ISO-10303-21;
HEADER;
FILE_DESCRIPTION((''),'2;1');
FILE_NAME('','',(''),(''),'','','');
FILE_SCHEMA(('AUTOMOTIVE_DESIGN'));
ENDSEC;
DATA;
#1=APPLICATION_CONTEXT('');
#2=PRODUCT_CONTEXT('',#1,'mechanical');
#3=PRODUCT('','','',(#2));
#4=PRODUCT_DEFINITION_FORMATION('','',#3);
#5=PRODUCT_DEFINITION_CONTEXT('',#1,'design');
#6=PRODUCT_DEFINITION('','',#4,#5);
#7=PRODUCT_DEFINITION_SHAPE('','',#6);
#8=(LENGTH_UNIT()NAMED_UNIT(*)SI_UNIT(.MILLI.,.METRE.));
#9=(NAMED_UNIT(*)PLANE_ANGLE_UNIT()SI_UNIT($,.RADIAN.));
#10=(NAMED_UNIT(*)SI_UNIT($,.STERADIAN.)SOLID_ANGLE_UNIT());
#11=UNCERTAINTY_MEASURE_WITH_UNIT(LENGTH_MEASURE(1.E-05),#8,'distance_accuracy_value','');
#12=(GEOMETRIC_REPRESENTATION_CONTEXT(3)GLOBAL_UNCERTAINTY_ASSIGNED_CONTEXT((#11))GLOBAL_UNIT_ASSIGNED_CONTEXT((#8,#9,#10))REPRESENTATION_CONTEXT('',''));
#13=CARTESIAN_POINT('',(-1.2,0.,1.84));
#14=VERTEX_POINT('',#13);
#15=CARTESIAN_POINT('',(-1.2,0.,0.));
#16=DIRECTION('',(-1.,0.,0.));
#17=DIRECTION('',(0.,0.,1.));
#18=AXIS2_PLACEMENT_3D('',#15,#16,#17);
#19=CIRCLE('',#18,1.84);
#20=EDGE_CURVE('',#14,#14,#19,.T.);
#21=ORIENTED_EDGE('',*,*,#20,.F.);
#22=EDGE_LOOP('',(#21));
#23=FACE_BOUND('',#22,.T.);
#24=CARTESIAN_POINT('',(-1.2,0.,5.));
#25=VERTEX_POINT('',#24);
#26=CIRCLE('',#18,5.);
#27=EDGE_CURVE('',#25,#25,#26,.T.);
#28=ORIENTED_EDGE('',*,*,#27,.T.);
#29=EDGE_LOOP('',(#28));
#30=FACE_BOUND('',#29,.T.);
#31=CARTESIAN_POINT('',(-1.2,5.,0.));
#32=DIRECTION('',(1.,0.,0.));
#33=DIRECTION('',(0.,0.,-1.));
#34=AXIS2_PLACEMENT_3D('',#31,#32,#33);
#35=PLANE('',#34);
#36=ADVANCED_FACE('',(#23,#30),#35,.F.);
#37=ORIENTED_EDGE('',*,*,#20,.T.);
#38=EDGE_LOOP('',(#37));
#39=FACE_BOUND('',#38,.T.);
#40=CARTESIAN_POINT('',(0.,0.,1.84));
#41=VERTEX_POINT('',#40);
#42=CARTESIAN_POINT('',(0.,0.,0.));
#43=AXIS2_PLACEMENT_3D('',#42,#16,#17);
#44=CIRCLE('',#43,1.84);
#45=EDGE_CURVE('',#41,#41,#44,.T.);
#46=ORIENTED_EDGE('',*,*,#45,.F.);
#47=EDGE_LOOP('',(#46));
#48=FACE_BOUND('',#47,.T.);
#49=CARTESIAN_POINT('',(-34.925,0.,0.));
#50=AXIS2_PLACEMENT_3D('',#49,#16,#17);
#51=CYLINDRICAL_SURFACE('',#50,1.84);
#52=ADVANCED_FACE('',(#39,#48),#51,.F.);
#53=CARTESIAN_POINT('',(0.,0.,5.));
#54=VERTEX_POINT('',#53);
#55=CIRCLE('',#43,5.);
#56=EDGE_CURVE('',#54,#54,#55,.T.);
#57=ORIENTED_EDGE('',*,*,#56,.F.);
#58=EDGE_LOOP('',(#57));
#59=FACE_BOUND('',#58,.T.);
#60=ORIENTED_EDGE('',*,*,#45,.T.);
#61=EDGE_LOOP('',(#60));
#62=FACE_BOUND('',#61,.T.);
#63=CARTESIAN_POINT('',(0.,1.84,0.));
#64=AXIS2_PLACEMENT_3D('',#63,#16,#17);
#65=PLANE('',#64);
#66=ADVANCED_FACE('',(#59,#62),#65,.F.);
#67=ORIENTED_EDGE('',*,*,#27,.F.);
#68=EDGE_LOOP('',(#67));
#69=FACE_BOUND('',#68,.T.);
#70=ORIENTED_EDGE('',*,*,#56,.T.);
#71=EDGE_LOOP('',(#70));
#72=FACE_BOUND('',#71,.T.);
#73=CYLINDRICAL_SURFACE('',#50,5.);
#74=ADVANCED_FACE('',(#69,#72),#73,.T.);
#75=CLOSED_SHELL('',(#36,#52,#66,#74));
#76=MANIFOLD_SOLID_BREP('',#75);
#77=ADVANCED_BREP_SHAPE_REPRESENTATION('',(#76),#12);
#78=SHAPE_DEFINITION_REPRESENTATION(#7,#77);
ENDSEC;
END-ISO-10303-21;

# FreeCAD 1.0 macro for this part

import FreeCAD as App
import Part
import Sketcher

V = App.Vector


def add_polygon(sketch, points):
    """Adds a closed chain of lines whose ends are joined by coincident constraints."""
    first, n = sketch.GeometryCount, len(points)
    for a, b in zip(points, points[1:] + points[:1]):
        sketch.addGeometry(Part.LineSegment(App.Vector(*a, 0), App.Vector(*b, 0)), False)
    for i in range(n):
        sketch.addConstraint(Sketcher.Constraint("Coincident", first + i, 2, first + (i + 1) % n, 1))

doc = App.newDocument("Part")
body = doc.addObject("PartDesign::Body", "Body")

# Sketch on XY plane
sketch1 = body.newObject("Sketcher::SketchObject", "Sketch")
sketch1.AttachmentSupport = (doc.getObject("XY_Plane"), [""])
sketch1.MapMode = "FlatFace"
add_polygon(sketch1, [(-1.2, 5), (-1.2, 1.84), (0, 1.84), (0, 5)])  # lines 0-3
sketch1.addConstraint([
    Sketcher.Constraint("Vertical", 0),
    Sketcher.Constraint("Horizontal", 1),
    Sketcher.Constraint("Vertical", 2),
    Sketcher.Constraint("Horizontal", 3),
    Sketcher.Constraint("PointOnObject", 1, 2, -2),
    Sketcher.Constraint("DistanceX", 1, 1, 1, 2, 1.2),
    Sketcher.Constraint("DistanceY", -1, 1, 2, 2, 5.0),
    Sketcher.Constraint("DistanceY", 0, 2, 0, 1, 3.16),
])
revolution = body.newObject("PartDesign::Revolution", "Revolution")
revolution.Profile = sketch1
revolution.ReferenceAxis = (sketch1, ["H_Axis"])
revolution.Angle = 360

doc.recompute()
